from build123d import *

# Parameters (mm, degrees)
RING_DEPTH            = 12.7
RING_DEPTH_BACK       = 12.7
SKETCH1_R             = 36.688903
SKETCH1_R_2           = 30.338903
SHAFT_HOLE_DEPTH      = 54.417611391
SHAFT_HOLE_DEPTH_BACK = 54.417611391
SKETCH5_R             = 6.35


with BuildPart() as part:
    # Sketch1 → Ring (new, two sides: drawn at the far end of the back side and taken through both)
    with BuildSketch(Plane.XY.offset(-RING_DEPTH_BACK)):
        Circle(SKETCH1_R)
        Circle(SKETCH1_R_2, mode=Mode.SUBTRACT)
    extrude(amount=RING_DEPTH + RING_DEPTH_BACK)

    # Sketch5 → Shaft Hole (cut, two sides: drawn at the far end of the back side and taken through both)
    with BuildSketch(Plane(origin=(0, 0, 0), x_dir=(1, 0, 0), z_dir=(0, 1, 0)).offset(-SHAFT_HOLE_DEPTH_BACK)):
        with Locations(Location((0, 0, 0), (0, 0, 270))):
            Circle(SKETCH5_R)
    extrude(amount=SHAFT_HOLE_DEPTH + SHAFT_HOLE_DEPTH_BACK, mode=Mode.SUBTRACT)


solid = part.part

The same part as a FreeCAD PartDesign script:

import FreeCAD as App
import Part
import Sketcher
Q = App.Units.Quantity

doc = App.newDocument("Part")
body = doc.addObject("PartDesign::Body", "Body")

sketch1 = body.newObject("Sketcher::SketchObject", "Sketch")
sketch1.AttachmentSupport = (doc.getObject("XY_Plane"), [""])
sketch1.MapMode = "FlatFace"
sketch1.addGeometry([
    Part.Circle(App.Vector(0, 0, 0), App.Vector(0, 0, 1), 37),
    Part.Circle(App.Vector(0, 0, 0), App.Vector(0, 0, 1), 30),
], False)
sketch1.addConstraint([
    Sketcher.Constraint("Coincident", 0, 3, -1, 1),
    Sketcher.Constraint("Coincident", 1, 3, -1, 1),
    Sketcher.Constraint("Diameter", 0, Q("73.377806 mm")),
    Sketcher.Constraint("Diameter", 1, Q("60.677806 mm")),
])
pad1 = body.newObject("PartDesign::Pad", "Pad")
pad1.Profile = sketch1
pad1.Type = "TwoLengths"
pad1.Length = Q("0.5 in")
pad1.Length2 = Q("0.5 in")

sketch2 = body.newObject("Sketcher::SketchObject", "Sketch001")
sketch2.AttachmentSupport = (doc.getObject("XZ_Plane"), [""])
sketch2.MapMode = "FlatFace"
sketch2.addGeometry(Part.Circle(App.Vector(0, 0, 0), App.Vector(0, 0, 1), 6), False)
sketch2.addConstraint([
    Sketcher.Constraint("Coincident", 0, 3, -1, 1),
    Sketcher.Constraint("Diameter", 0, Q("0.5 in")),
])
pocket1 = body.newObject("PartDesign::Pocket", "Pocket")
pocket1.Profile = sketch2
pocket1.Type = "ThroughAll"
pocket1.Midplane = True

doc.recompute()
